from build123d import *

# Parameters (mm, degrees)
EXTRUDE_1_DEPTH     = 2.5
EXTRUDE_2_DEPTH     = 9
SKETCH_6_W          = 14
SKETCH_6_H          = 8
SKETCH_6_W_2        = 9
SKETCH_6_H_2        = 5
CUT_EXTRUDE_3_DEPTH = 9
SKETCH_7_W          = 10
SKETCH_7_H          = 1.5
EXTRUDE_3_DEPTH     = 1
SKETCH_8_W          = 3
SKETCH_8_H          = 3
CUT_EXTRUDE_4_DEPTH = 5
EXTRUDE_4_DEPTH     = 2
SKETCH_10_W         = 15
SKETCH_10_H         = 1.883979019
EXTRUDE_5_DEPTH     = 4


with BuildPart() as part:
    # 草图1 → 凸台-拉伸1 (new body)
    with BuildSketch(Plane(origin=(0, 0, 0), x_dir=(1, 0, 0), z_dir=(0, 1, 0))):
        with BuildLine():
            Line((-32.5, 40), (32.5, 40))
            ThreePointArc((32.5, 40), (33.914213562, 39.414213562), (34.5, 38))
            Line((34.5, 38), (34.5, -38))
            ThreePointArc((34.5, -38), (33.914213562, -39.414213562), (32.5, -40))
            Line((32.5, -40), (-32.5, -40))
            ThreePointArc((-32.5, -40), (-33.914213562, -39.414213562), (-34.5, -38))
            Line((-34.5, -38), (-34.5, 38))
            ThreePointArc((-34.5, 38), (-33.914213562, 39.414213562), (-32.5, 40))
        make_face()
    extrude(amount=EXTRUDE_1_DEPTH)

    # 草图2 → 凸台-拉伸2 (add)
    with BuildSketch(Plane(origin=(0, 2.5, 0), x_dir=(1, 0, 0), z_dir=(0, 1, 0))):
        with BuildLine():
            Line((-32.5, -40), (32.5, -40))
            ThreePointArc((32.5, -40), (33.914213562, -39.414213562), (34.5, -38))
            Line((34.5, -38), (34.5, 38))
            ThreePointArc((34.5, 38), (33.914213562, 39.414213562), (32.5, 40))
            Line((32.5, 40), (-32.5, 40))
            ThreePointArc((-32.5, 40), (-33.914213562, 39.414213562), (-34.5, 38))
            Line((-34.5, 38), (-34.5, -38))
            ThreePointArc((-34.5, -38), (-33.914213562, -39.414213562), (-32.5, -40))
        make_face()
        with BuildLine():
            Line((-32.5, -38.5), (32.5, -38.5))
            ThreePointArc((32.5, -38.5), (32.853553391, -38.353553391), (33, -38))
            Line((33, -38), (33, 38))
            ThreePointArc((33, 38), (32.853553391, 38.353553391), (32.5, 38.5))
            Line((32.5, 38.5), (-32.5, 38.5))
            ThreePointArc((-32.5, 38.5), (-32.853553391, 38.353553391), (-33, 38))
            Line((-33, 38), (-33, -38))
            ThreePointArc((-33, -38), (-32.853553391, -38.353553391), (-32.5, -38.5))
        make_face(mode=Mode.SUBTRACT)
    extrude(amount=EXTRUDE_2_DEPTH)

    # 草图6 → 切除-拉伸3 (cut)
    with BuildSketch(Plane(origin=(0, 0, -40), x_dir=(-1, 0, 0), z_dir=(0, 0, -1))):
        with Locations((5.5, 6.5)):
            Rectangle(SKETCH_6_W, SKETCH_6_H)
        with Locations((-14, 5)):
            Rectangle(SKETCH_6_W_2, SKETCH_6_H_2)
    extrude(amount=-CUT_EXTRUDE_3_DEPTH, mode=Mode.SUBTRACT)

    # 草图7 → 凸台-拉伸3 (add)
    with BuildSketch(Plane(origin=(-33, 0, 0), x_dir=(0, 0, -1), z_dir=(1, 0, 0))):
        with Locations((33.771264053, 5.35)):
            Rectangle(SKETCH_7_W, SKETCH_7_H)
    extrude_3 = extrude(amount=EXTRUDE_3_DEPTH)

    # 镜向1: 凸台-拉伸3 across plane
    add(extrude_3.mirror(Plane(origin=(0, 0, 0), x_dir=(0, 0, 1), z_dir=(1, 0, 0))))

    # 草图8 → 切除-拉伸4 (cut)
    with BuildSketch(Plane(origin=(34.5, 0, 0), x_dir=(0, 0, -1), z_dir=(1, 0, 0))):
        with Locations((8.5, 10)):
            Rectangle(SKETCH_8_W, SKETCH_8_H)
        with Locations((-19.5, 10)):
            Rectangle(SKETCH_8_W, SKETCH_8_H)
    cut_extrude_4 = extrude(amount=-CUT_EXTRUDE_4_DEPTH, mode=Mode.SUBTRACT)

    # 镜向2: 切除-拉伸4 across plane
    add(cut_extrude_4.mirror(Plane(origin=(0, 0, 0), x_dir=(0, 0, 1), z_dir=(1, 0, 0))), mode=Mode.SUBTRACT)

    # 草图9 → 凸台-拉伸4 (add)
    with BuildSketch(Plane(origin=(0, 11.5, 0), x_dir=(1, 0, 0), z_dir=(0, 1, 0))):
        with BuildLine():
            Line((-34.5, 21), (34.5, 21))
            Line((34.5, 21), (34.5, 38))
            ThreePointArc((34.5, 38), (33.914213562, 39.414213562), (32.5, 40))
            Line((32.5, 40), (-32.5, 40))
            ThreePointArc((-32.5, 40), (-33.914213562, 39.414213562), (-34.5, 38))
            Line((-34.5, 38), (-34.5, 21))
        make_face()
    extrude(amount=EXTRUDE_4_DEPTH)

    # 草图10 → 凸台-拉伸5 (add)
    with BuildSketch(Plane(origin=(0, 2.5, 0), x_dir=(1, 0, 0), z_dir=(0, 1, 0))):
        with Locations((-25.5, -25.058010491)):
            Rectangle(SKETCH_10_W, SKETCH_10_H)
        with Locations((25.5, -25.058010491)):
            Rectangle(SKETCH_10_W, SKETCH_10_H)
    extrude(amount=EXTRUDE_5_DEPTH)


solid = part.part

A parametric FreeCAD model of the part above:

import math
import FreeCAD as App
import Part
import Sketcher
from FreeCAD import Vector


def add_polygon(sketch, points):
    """Adds a closed chain of lines whose ends are joined by coincident constraints."""
    first, n = sketch.GeometryCount, len(points)
    for a, b in zip(points, points[1:] + points[:1]):
        sketch.addGeometry(Part.LineSegment(App.Vector(*a, 0), App.Vector(*b, 0)), False)
    for i in range(n):
        sketch.addConstraint(Sketcher.Constraint("Coincident", first + i, 2, first + (i + 1) % n, 1))

doc = App.newDocument("Part")
params = doc.addObject("Spreadsheet::Sheet", "Params")
for row, (alias, value) in enumerate([
    ("sketch1_radius", "2 mm"),
    ("sketch1_width", "65 mm"),
    ("sketch1_height", "76 mm"),
    ("pad1_length", "2.5 mm"),
    ("sketch2_radius", "2 mm"),
    ("sketch2_radius2", "0.5 mm"),
    ("sketch2_width", "65 mm"),
    ("sketch2_height", "76 mm"),
    ("pad2_length", "9 mm"),
    ("sketch3_width", "14 mm"),
    ("sketch3_width2", "9 mm"),
    ("sketch3_height", "8 mm"),
    ("sketch3_height2", "5 mm"),
    ("pocket1_length", "9 mm"),
    ("sketch4_height", "10 mm"),
    ("sketch4_width", "1.5 mm"),
    ("pad3_length", "1 mm"),
    ("sketch5_width", "3 mm"),
    ("pocket2_length", "5 mm"),
    ("sketch6_radius", "2 mm"),
    ("sketch6_width", "69 mm"),
    ("sketch6_height", "17 mm"),
    ("pad4_length", "2 mm"),
    ("sketch7_width", "15 mm"),
    ("pad5_length", "4 mm"),
], start=1):
    params.set(f"A{row}", alias)
    params.set(f"B{row}", "=" + value)
    params.setAlias(f"B{row}", alias)

body = doc.addObject("PartDesign::Body", "Body")

sketch1 = body.newObject("Sketcher::SketchObject", "Sketch")
sketch1.AttachmentSupport = (doc.getObject("XZ_Plane"), [""])
sketch1.MapMode = "FlatFace"
sketch1.addGeometry(Part.LineSegment(Vector(32.5, -40, 0), Vector(-32.5, -40, 0)), False)
sketch1.addGeometry(Part.ArcOfCircle(Part.Circle(Vector(-32.5, -38, 0), Vector(0, 0, 1), 2), math.radians(-180), math.radians(-90)), False)
sketch1.addGeometry(Part.LineSegment(Vector(-34.5, -38, 0), Vector(-34.5, 38, 0)), False)
sketch1.addGeometry(Part.ArcOfCircle(Part.Circle(Vector(-32.5, 38, 0), Vector(0, 0, 1), 2), math.radians(90), math.radians(180)), False)
sketch1.addGeometry(Part.LineSegment(Vector(-32.5, 40, 0), Vector(32.5, 40, 0)), False)
sketch1.addGeometry(Part.ArcOfCircle(Part.Circle(Vector(32.5, 38, 0), Vector(0, 0, 1), 2), math.radians(0), math.radians(90)), False)
sketch1.addGeometry(Part.LineSegment(Vector(34.5, 38, 0), Vector(34.5, -38, 0)), False)
sketch1.addGeometry(Part.ArcOfCircle(Part.Circle(Vector(32.5, -38, 0), Vector(0, 0, 1), 2), math.radians(-90), math.radians(0)), False)
sketch1.addConstraint(Sketcher.Constraint("Tangent", 0, 2, 1, 2))
sketch1.addConstraint(Sketcher.Constraint("Tangent", 1, 1, 2, 1))
sketch1.addConstraint(Sketcher.Constraint("Tangent", 2, 2, 3, 2))
sketch1.addConstraint(Sketcher.Constraint("Tangent", 3, 1, 4, 1))
sketch1.addConstraint(Sketcher.Constraint("Tangent", 4, 2, 5, 2))
sketch1.addConstraint(Sketcher.Constraint("Tangent", 5, 1, 6, 1))
sketch1.addConstraint(Sketcher.Constraint("Tangent", 6, 2, 7, 2))
sketch1.addConstraint(Sketcher.Constraint("Tangent", 7, 1, 0, 1))
sketch1.addConstraint(Sketcher.Constraint("Horizontal", 0))
sketch1.addConstraint(Sketcher.Constraint("Vertical", 2))
sketch1.addConstraint(Sketcher.Constraint("Horizontal", 4))
sketch1.addConstraint(Sketcher.Constraint("Vertical", 6))
sketch1.addConstraint(Sketcher.Constraint("Equal", 1, 3))
sketch1.addConstraint(Sketcher.Constraint("Equal", 3, 5))
sketch1.addConstraint(Sketcher.Constraint("Equal", 5, 7))
sketch1.addConstraint(Sketcher.Constraint("Symmetric", 1, 3, 5, 3, -1, 1))
sketch1.addConstraint(Sketcher.Constraint("Radius", 1, 2.0))
sketch1.addConstraint(Sketcher.Constraint("DistanceX", 0, 2, 0, 1, 65.0))
sketch1.addConstraint(Sketcher.Constraint("DistanceY", 2, 1, 2, 2, 76.0))
sketch1.setExpression("Constraints[16]", "Params.sketch1_radius")
sketch1.setExpression("Constraints[17]", "Params.sketch1_width")
sketch1.setExpression("Constraints[18]", "Params.sketch1_height")
pad1 = body.newObject("PartDesign::Pad", "Pad")
pad1.Profile = sketch1
pad1.setExpression("Length", "Params.pad1_length")
pad1.Reversed = True

sketch2 = body.newObject("Sketcher::SketchObject", "Sketch001")
sketch2.AttachmentSupport = (doc.getObject("XZ_Plane"), [""])
sketch2.MapMode = "FlatFace"
sketch2.AttachmentOffset = App.Placement(Vector(0, 0, -2.5), App.Rotation())
sketch2.addGeometry(Part.LineSegment(Vector(-32.5, 40, 0), Vector(32.5, 40, 0)), False)
sketch2.addGeometry(Part.ArcOfCircle(Part.Circle(Vector(32.5, 38, 0), Vector(0, 0, 1), 2), math.radians(0), math.radians(90)), False)
sketch2.addGeometry(Part.LineSegment(Vector(34.5, 38, 0), Vector(34.5, -38, 0)), False)
sketch2.addGeometry(Part.ArcOfCircle(Part.Circle(Vector(32.5, -38, 0), Vector(0, 0, 1), 2), math.radians(-90), math.radians(0)), False)
sketch2.addGeometry(Part.LineSegment(Vector(32.5, -40, 0), Vector(-32.5, -40, 0)), False)
sketch2.addGeometry(Part.ArcOfCircle(Part.Circle(Vector(-32.5, -38, 0), Vector(0, 0, 1), 2), math.radians(-180), math.radians(-90)), False)
sketch2.addGeometry(Part.LineSegment(Vector(-34.5, -38, 0), Vector(-34.5, 38, 0)), False)
sketch2.addGeometry(Part.ArcOfCircle(Part.Circle(Vector(-32.5, 38, 0), Vector(0, 0, 1), 2), math.radians(90), math.radians(180)), False)
sketch2.addGeometry(Part.LineSegment(Vector(32.5, 38.5, 0), Vector(-32.5, 38.5, 0)), False)
sketch2.addGeometry(Part.ArcOfCircle(Part.Circle(Vector(-32.5, 38, 0), Vector(0, 0, 1), 0.5), math.radians(90), math.radians(180)), False)
sketch2.addGeometry(Part.LineSegment(Vector(-33, 38, 0), Vector(-33, -38, 0)), False)
sketch2.addGeometry(Part.ArcOfCircle(Part.Circle(Vector(-32.5, -38, 0), Vector(0, 0, 1), 0.5), math.radians(180), math.radians(270)), False)
sketch2.addGeometry(Part.LineSegment(Vector(-32.5, -38.5, 0), Vector(32.5, -38.5, 0)), False)
sketch2.addGeometry(Part.ArcOfCircle(Part.Circle(Vector(32.5, -38, 0), Vector(0, 0, 1), 0.5), math.radians(-90), math.radians(0)), False)
sketch2.addGeometry(Part.LineSegment(Vector(33, -38, 0), Vector(33, 38, 0)), False)
sketch2.addGeometry(Part.ArcOfCircle(Part.Circle(Vector(32.5, 38, 0), Vector(0, 0, 1), 0.5), math.radians(0), math.radians(90)), False)
sketch2.addConstraint(Sketcher.Constraint("Tangent", 0, 2, 1, 2))
sketch2.addConstraint(Sketcher.Constraint("Tangent", 1, 1, 2, 1))
sketch2.addConstraint(Sketcher.Constraint("Tangent", 2, 2, 3, 2))
sketch2.addConstraint(Sketcher.Constraint("Tangent", 3, 1, 4, 1))
sketch2.addConstraint(Sketcher.Constraint("Tangent", 4, 2, 5, 2))
sketch2.addConstraint(Sketcher.Constraint("Tangent", 5, 1, 6, 1))
sketch2.addConstraint(Sketcher.Constraint("Tangent", 6, 2, 7, 2))
sketch2.addConstraint(Sketcher.Constraint("Tangent", 7, 1, 0, 1))
sketch2.addConstraint(Sketcher.Constraint("Tangent", 8, 2, 9, 1))
sketch2.addConstraint(Sketcher.Constraint("Tangent", 9, 2, 10, 1))
sketch2.addConstraint(Sketcher.Constraint("Tangent", 10, 2, 11, 1))
sketch2.addConstraint(Sketcher.Constraint("Tangent", 11, 2, 12, 1))
sketch2.addConstraint(Sketcher.Constraint("Tangent", 12, 2, 13, 1))
sketch2.addConstraint(Sketcher.Constraint("Tangent", 13, 2, 14, 1))
sketch2.addConstraint(Sketcher.Constraint("Tangent", 14, 2, 15, 1))
sketch2.addConstraint(Sketcher.Constraint("Tangent", 15, 2, 8, 1))
sketch2.addConstraint(Sketcher.Constraint("Horizontal", 0))
sketch2.addConstraint(Sketcher.Constraint("Vertical", 2))
sketch2.addConstraint(Sketcher.Constraint("Horizontal", 4))
sketch2.addConstraint(Sketcher.Constraint("Vertical", 6))
sketch2.addConstraint(Sketcher.Constraint("Horizontal", 8))
sketch2.addConstraint(Sketcher.Constraint("Vertical", 10))
sketch2.addConstraint(Sketcher.Constraint("Horizontal", 12))
sketch2.addConstraint(Sketcher.Constraint("Vertical", 14))
sketch2.addConstraint(Sketcher.Constraint("Coincident", 9, 3, 7, 3))
sketch2.addConstraint(Sketcher.Constraint("Coincident", 11, 3, 5, 3))
sketch2.addConstraint(Sketcher.Constraint("Coincident", 13, 3, 3, 3))
sketch2.addConstraint(Sketcher.Constraint("Equal", 1, 3))
sketch2.addConstraint(Sketcher.Constraint("Equal", 3, 5))
sketch2.addConstraint(Sketcher.Constraint("Equal", 5, 7))
sketch2.addConstraint(Sketcher.Constraint("Equal", 13, 15))
sketch2.addConstraint(Sketcher.Constraint("Symmetric", 1, 3, 5, 3, -1, 1))
sketch2.addConstraint(Sketcher.Constraint("Radius", 1, 2.0))
sketch2.addConstraint(Sketcher.Constraint("Radius", 9, 0.5))
sketch2.addConstraint(Sketcher.Constraint("DistanceX", 0, 1, 0, 2, 65.0))
sketch2.addConstraint(Sketcher.Constraint("DistanceY", 2, 2, 2, 1, 76.0))
sketch2.setExpression("Constraints[32]", "Params.sketch2_radius")
sketch2.setExpression("Constraints[33]", "Params.sketch2_radius2")
sketch2.setExpression("Constraints[34]", "Params.sketch2_width")
sketch2.setExpression("Constraints[35]", "Params.sketch2_height")
pad2 = body.newObject("PartDesign::Pad", "Pad001")
pad2.Profile = sketch2
pad2.setExpression("Length", "Params.pad2_length")
pad2.Reversed = True

sketch3 = body.newObject("Sketcher::SketchObject", "Sketch002")
sketch3.AttachmentSupport = (doc.getObject("XY_Plane"), [""])
sketch3.MapMode = "FlatFace"
sketch3.AttachmentOffset = App.Placement(Vector(0, 0, -40), App.Rotation())
add_polygon(sketch3, [(2, 10), (2, 2), (-12, 2), (-12, 10)])
add_polygon(sketch3, [(18, 8), (18, 2), (10, 2), (10, 8)])
sketch3.addConstraint(Sketcher.Constraint("Vertical", 0))
sketch3.addConstraint(Sketcher.Constraint("Horizontal", 1))
sketch3.addConstraint(Sketcher.Constraint("Vertical", 2))
sketch3.addConstraint(Sketcher.Constraint("Horizontal", 3))
sketch3.addConstraint(Sketcher.Constraint("Vertical", 4))
sketch3.addConstraint(Sketcher.Constraint("Horizontal", 5))
sketch3.addConstraint(Sketcher.Constraint("Vertical", 6))
sketch3.addConstraint(Sketcher.Constraint("Horizontal", 7))
sketch3.addConstraint(Sketcher.Constraint("Horizontal", 1, 2, 4, 2))
sketch3.addConstraint(Sketcher.Constraint("DistanceX", 1, 2, 1, 1, 14.0))
sketch3.addConstraint(Sketcher.Constraint("DistanceX", 5, 2, 5, 1, 9.0))
sketch3.addConstraint(Sketcher.Constraint("DistanceY", 0, 2, 0, 1, 8.0))
sketch3.addConstraint(Sketcher.Constraint("DistanceY", 4, 2, 4, 1, 5.0))
sketch3.addConstraint(Sketcher.Constraint("DistanceX", 0, 2, 4, 2, 17.0))
sketch3.addConstraint(Sketcher.Constraint("DistanceX", -1, 1, 0, 2, 1.5))
sketch3.addConstraint(Sketcher.Constraint("DistanceY", -1, 1, 0, 2, 2.5))
sketch3.setExpression("Constraints[17]", "Params.sketch3_width")
sketch3.setExpression("Constraints[18]", "Params.sketch3_width2")
sketch3.setExpression("Constraints[19]", "Params.sketch3_height")
sketch3.setExpression("Constraints[20]", "Params.sketch3_height2")
pocket1 = body.newObject("PartDesign::Pocket", "Pocket")
pocket1.Profile = sketch3
pocket1.setExpression("Length", "Params.pocket1_length")
pocket1.Reversed = True

sketch4 = body.newObject("Sketcher::SketchObject", "Sketch003")
sketch4.AttachmentSupport = (doc.getObject("YZ_Plane"), [""])
sketch4.MapMode = "FlatFace"
sketch4.AttachmentOffset = App.Placement(Vector(0, 0, -33), App.Rotation())
add_polygon(sketch4, [(6.1, -28.8), (4.6, -28.8), (4.6, -38.8), (6.1, -38.8)])
sketch4.addConstraint(Sketcher.Constraint("Horizontal", 0))
sketch4.addConstraint(Sketcher.Constraint("Vertical", 1))
sketch4.addConstraint(Sketcher.Constraint("Horizontal", 2))
sketch4.addConstraint(Sketcher.Constraint("Vertical", 3))
sketch4.addConstraint(Sketcher.Constraint("DistanceY", 1, 2, 1, 1, 10.0))
sketch4.addConstraint(Sketcher.Constraint("DistanceX", 0, 2, 0, 1, 1.5))
sketch4.addConstraint(Sketcher.Constraint("DistanceX", -1, 1, 0, 2, 4.6))
sketch4.addConstraint(Sketcher.Constraint("DistanceY", 0, 2, -1, 1, 28.771264))
sketch4.setExpression("Constraints[8]", "Params.sketch4_height")
sketch4.setExpression("Constraints[9]", "Params.sketch4_width")
pad3 = body.newObject("PartDesign::Pad", "Pad002")
pad3.Profile = sketch4
pad3.setExpression("Length", "Params.pad3_length")
doc.recompute()

mirrored = body.newObject("PartDesign::Mirrored", "Mirrored")
mirrored.Originals = [pad3]
mirrored.MirrorPlane = (doc.getObject("YZ_Plane"), [""])
body.Tip = mirrored

sketch5 = body.newObject("Sketcher::SketchObject", "Sketch004")
sketch5.AttachmentSupport = (doc.getObject("YZ_Plane"), [""])
sketch5.MapMode = "FlatFace"
sketch5.AttachmentOffset = App.Placement(Vector(0, 0, 34.5), App.Rotation())
add_polygon(sketch5, [(11.5, -7), (8.5, -7), (8.5, -10), (11.5, -10)])
add_polygon(sketch5, [(11.5, 21), (8.5, 21), (8.5, 18), (11.5, 18)])
sketch5.addConstraint(Sketcher.Constraint("Horizontal", 0))
sketch5.addConstraint(Sketcher.Constraint("Vertical", 1))
sketch5.addConstraint(Sketcher.Constraint("Horizontal", 2))
sketch5.addConstraint(Sketcher.Constraint("Vertical", 3))
sketch5.addConstraint(Sketcher.Constraint("Horizontal", 4))
sketch5.addConstraint(Sketcher.Constraint("Vertical", 5))
sketch5.addConstraint(Sketcher.Constraint("Horizontal", 6))
sketch5.addConstraint(Sketcher.Constraint("Vertical", 7))
sketch5.addConstraint(Sketcher.Constraint("Vertical", 1, 2, 4, 2))
sketch5.addConstraint(Sketcher.Constraint("Vertical", 3, 2, 6, 2))
sketch5.addConstraint(Sketcher.Constraint("Equal", 6, 1))
sketch5.addConstraint(Sketcher.Constraint("Equal", 3, 5))
sketch5.addConstraint(Sketcher.Constraint("DistanceX", 0, 2, 0, 1, 3.0))
sketch5.addConstraint(Sketcher.Constraint("DistanceY", 0, 2, -1, 1, 7.0))
sketch5.addConstraint(Sketcher.Constraint("DistanceY", -1, 1, 4, 2, 21.0))
sketch5.addConstraint(Sketcher.Constraint("DistanceX", -1, 1, 0, 2, 8.5))
sketch5.setExpression("Constraints[20]", "Params.sketch5_width")
pocket2 = body.newObject("PartDesign::Pocket", "Pocket001")
pocket2.Profile = sketch5
pocket2.setExpression("Length", "Params.pocket2_length")
doc.recompute()

mirrored2 = body.newObject("PartDesign::Mirrored", "Mirrored001")
mirrored2.Originals = [pocket2]
mirrored2.MirrorPlane = (doc.getObject("YZ_Plane"), [""])
body.Tip = mirrored2

sketch6 = body.newObject("Sketcher::SketchObject", "Sketch005")
sketch6.AttachmentSupport = (doc.getObject("XZ_Plane"), [""])
sketch6.MapMode = "FlatFace"
sketch6.AttachmentOffset = App.Placement(Vector(0, 0, -11.5), App.Rotation())
sketch6.addGeometry(Part.LineSegment(Vector(-34.5, -21, 0), Vector(34.5, -21, 0)), False)
sketch6.addGeometry(Part.LineSegment(Vector(34.5, -21, 0), Vector(34.5, -38, 0)), False)
sketch6.addGeometry(Part.ArcOfCircle(Part.Circle(Vector(32.5, -38, 0), Vector(0, 0, 1), 2), math.radians(-90), math.radians(0)), False)
sketch6.addGeometry(Part.LineSegment(Vector(32.5, -40, 0), Vector(-32.5, -40, 0)), False)
sketch6.addGeometry(Part.ArcOfCircle(Part.Circle(Vector(-32.5, -38, 0), Vector(0, 0, 1), 2), math.radians(-180), math.radians(-90)), False)
sketch6.addGeometry(Part.LineSegment(Vector(-34.5, -38, 0), Vector(-34.5, -21, 0)), False)
sketch6.addConstraint(Sketcher.Constraint("Coincident", 0, 2, 1, 1))
sketch6.addConstraint(Sketcher.Constraint("Tangent", 1, 2, 2, 2))
sketch6.addConstraint(Sketcher.Constraint("Tangent", 2, 1, 3, 1))
sketch6.addConstraint(Sketcher.Constraint("Tangent", 3, 2, 4, 2))
sketch6.addConstraint(Sketcher.Constraint("Tangent", 4, 1, 5, 1))
sketch6.addConstraint(Sketcher.Constraint("Coincident", 5, 2, 0, 1))
sketch6.addConstraint(Sketcher.Constraint("Horizontal", 0))
sketch6.addConstraint(Sketcher.Constraint("Vertical", 1))
sketch6.addConstraint(Sketcher.Constraint("Horizontal", 3))
sketch6.addConstraint(Sketcher.Constraint("Vertical", 5))
sketch6.addConstraint(Sketcher.Constraint("Equal", 2, 4))
sketch6.addConstraint(Sketcher.Constraint("Radius", 2, 2.0))
sketch6.addConstraint(Sketcher.Constraint("DistanceX", 0, 1, 0, 2, 69.0))
sketch6.addConstraint(Sketcher.Constraint("DistanceY", 1, 2, 1, 1, 17.0))
sketch6.addConstraint(Sketcher.Constraint("DistanceY", 2, 3, -1, 1, 38.0))
sketch6.addConstraint(Sketcher.Constraint("DistanceX", -1, 1, 2, 3, 32.5))
sketch6.setExpression("Constraints[11]", "Params.sketch6_radius")
sketch6.setExpression("Constraints[12]", "Params.sketch6_width")
sketch6.setExpression("Constraints[13]", "Params.sketch6_height")
pad4 = body.newObject("PartDesign::Pad", "Pad003")
pad4.Profile = sketch6
pad4.setExpression("Length", "Params.pad4_length")
pad4.Reversed = True

sketch7 = body.newObject("Sketcher::SketchObject", "Sketch006")
sketch7.AttachmentSupport = (doc.getObject("XZ_Plane"), [""])
sketch7.MapMode = "FlatFace"
sketch7.AttachmentOffset = App.Placement(Vector(0, 0, -2.5), App.Rotation())
add_polygon(sketch7, [(-33, 24.1), (-33, 26), (-18, 26), (-18, 24.1)])
add_polygon(sketch7, [(18, 24.1), (18, 26), (33, 26), (33, 24.1)])
sketch7.addConstraint(Sketcher.Constraint("Vertical", 0))
sketch7.addConstraint(Sketcher.Constraint("Horizontal", 1))
sketch7.addConstraint(Sketcher.Constraint("Vertical", 2))
sketch7.addConstraint(Sketcher.Constraint("Horizontal", 3))
sketch7.addConstraint(Sketcher.Constraint("Vertical", 4))
sketch7.addConstraint(Sketcher.Constraint("Horizontal", 5))
sketch7.addConstraint(Sketcher.Constraint("Vertical", 6))
sketch7.addConstraint(Sketcher.Constraint("Horizontal", 7))
sketch7.addConstraint(Sketcher.Constraint("Symmetric", 1, 2, 4, 2, -2))
sketch7.addConstraint(Sketcher.Constraint("Symmetric", 3, 2, 6, 2, -2))
sketch7.addConstraint(Sketcher.Constraint("DistanceX", 1, 1, 1, 2, 15.0))
sketch7.addConstraint(Sketcher.Constraint("DistanceX", 0, 2, -1, 1, 33.0))
sketch7.addConstraint(Sketcher.Constraint("DistanceY", -1, 1, 0, 2, 26.0))
sketch7.addConstraint(Sketcher.Constraint("DistanceY", 0, 1, 0, 2, 1.883979))
sketch7.setExpression("Constraints[18]", "Params.sketch7_width")
pad5 = body.newObject("PartDesign::Pad", "Pad004")
pad5.Profile = sketch7
pad5.setExpression("Length", "Params.pad5_length")
pad5.Reversed = True

doc.recompute()
